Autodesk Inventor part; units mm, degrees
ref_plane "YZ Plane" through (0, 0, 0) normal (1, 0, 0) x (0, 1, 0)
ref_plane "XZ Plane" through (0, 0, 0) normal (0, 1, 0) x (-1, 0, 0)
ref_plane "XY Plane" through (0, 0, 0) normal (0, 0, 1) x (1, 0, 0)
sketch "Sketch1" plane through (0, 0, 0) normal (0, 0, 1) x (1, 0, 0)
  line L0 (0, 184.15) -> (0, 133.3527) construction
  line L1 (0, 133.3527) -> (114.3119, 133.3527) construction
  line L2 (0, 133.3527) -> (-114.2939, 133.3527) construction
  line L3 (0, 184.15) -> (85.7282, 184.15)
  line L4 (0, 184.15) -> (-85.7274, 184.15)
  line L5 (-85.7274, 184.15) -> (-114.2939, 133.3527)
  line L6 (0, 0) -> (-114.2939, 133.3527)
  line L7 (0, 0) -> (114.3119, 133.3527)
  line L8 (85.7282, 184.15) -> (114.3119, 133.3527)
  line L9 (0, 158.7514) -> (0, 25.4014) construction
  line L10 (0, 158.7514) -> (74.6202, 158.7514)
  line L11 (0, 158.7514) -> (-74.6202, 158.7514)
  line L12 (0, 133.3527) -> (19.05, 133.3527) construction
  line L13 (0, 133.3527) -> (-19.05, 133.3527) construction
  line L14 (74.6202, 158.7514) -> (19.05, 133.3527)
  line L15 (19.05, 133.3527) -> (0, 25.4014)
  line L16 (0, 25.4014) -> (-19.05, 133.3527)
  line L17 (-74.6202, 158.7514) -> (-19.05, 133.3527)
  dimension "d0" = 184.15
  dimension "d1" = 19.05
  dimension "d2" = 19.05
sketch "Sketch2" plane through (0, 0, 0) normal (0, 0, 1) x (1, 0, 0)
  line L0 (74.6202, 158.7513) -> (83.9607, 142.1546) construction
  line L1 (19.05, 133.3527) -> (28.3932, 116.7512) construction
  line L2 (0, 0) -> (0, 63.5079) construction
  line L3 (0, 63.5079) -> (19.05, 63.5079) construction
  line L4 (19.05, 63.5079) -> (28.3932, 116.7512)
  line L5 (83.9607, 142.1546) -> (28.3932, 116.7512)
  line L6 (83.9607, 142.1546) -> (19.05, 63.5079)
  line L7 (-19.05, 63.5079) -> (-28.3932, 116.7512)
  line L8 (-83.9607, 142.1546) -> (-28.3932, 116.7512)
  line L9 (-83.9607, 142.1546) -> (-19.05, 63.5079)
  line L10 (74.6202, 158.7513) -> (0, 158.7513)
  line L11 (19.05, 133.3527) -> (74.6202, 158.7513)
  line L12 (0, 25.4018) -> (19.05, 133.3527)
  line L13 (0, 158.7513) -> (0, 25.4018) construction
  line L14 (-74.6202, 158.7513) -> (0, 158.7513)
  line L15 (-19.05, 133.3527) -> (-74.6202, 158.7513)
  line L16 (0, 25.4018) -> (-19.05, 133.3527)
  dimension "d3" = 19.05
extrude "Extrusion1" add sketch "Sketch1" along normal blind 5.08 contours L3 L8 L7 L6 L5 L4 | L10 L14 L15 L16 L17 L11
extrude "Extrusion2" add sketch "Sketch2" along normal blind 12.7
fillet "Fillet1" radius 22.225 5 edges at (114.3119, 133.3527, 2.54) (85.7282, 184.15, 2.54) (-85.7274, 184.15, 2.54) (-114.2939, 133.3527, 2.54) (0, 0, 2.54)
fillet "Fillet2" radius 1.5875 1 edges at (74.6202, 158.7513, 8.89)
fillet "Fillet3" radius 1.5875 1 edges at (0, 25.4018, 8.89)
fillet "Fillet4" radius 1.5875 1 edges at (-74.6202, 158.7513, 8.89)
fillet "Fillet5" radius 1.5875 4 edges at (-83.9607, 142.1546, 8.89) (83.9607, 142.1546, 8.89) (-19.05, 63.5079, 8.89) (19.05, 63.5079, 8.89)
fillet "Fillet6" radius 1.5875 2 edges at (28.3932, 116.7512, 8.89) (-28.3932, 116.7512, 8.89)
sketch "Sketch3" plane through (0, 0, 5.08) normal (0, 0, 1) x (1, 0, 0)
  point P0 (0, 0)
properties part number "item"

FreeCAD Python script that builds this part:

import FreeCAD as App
import Part
import Sketcher
Q = App.Units.Quantity


def edges_at(feature, points):
    """Names of the edges that pass closest to the given points."""
    edges = feature.Shape.Edges
    near = lambda p: min(range(len(edges)), key=lambda i: edges[i].distToShape(Part.Vertex(*p))[0])
    return sorted({f"Edge{near(p) + 1}" for p in points})


def add_polygon(sketch, points):
    """Adds a closed chain of lines whose ends are joined by coincident constraints."""
    first, n = sketch.GeometryCount, len(points)
    for a, b in zip(points, points[1:] + points[:1]):
        sketch.addGeometry(Part.LineSegment(App.Vector(*a, 0), App.Vector(*b, 0)), False)
    for i in range(n):
        sketch.addConstraint(Sketcher.Constraint("Coincident", first + i, 2, first + (i + 1) % n, 1))

doc = App.newDocument("Part")
body = doc.addObject("PartDesign::Body", "Body")

sketch1 = body.newObject("Sketcher::SketchObject", "Sketch")
sketch1.AttachmentSupport = (doc.getObject("XY_Plane"), [""])
sketch1.MapMode = "FlatFace"
add_polygon(sketch1, [(85.7282, 184.15), (-85.7274, 184.15), (-114.2939, 133.3527), (0, 0), (114.3119, 133.3527)])
sketch1.addConstraint([
    Sketcher.Constraint("Horizontal", 0),
    Sketcher.Constraint("Coincident", 2, 2, -1, 1),
    Sketcher.Constraint("Horizontal", 1, 2, 3, 2),
    Sketcher.Constraint("DistanceY", -1, 1, 0, 2, Q("7.25 in")),
    Sketcher.Constraint("Angle", 2, Q("-49.4008 deg")),
    Sketcher.Constraint("DistanceX", 0, 2, 0, 1, Q("171.4556 mm")),
    Sketcher.Constraint("DistanceX", 0, 2, -1, 1, Q("3.3751 in")),
    Sketcher.Constraint("DistanceY", -1, 1, 1, 2, Q("5.2501 in")),
    Sketcher.Constraint("Distance", 3, Q("175.642 mm")),
])
pad1 = body.newObject("PartDesign::Pad", "Pad")
pad1.Profile = sketch1
pad1.Length = Q("0.2 in")

sketch2 = body.newObject("Sketcher::SketchObject", "Sketch001")
sketch2.AttachmentSupport = (doc.getObject("XY_Plane"), [""])
sketch2.MapMode = "FlatFace"
add_polygon(sketch2, [(28.3932, 116.7512), (19.05, 63.5079), (83.9607, 142.1546)])
add_polygon(sketch2, [(-83.9607, 142.1546), (-19.05, 63.5079), (-28.3932, 116.7512)])
add_polygon(sketch2, [(19.05, 133.3527), (74.6202, 158.7513), (-74.6202, 158.7513), (-19.05, 133.3527), (0, 25.4018)])
sketch2.addConstraint([
    Sketcher.Constraint("Horizontal", 7),
    Sketcher.Constraint("PointOnObject", 9, 2, -2),
    Sketcher.Constraint("DistanceX", -1, 1, 0, 2, Q("0.75 in")),
    Sketcher.Constraint("DistanceX", 3, 2, -1, 1, Q("0.75 in")),
    Sketcher.Constraint("DistanceX", 8, 2, -1, 1, Q("0.75 in")),
    Sketcher.Constraint("DistanceX", -1, 1, 10, 2, Q("0.75 in")),
    Sketcher.Constraint("DistanceX", 7, 2, 7, 1, Q("5.8756 in")),
    Sketcher.Constraint("Distance", 9, Q("4.3157 in")),
    Sketcher.Constraint("Distance", 10, Q("4.3157 in")),
    Sketcher.Constraint("DistanceY", -1, 1, 0, 2, Q("2.5003 in")),
    Sketcher.Constraint("DistanceY", -1, 1, 2, 2, Q("4.5965 in")),
    Sketcher.Constraint("DistanceY", -1, 1, 3, 2, Q("2.5003 in")),
    Sketcher.Constraint("DistanceY", -1, 1, 4, 2, Q("4.5965 in")),
    Sketcher.Constraint("DistanceX", -1, 1, 6, 2, Q("2.9378 in")),
    Sketcher.Constraint("DistanceY", -1, 1, 8, 2, Q("5.2501 in")),
    Sketcher.Constraint("DistanceX", 2, 2, 1, 2, Q("2.1877 in")),
    Sketcher.Constraint("DistanceX", 5, 2, 4, 2, Q("2.1877 in")),
    Sketcher.Constraint("Distance", 0, Q("54.0569 mm")),
    Sketcher.Constraint("Distance", 1, Q("101.974 mm")),
    Sketcher.Constraint("Distance", 3, Q("101.974 mm")),
    Sketcher.Constraint("Distance", 4, Q("54.0569 mm")),
    Sketcher.Constraint("Distance", 6, Q("2.4054882 in")),
])
pad2 = body.newObject("PartDesign::Pad", "Pad001")
pad2.Profile = sketch2
pad2.Length = Q("0.5 in")
doc.recompute()

fillet = body.newObject("PartDesign::Fillet", "Fillet")
fillet.Base = (pad2, edges_at(pad2, [
    (114.312, 133.353, 2.54),
    (85.728, 184.15, 2.54),
    (-85.727, 184.15, 2.54),
    (-114.294, 133.353, 2.54),
    (0, 0, 2.54),
]))
fillet.Radius = Q("0.875 in")
doc.recompute()

fillet2 = body.newObject("PartDesign::Fillet", "Fillet001")
fillet2.Base = (fillet, edges_at(fillet, [(74.62, 158.751, 8.89)]))
fillet2.Radius = Q("0.0625 in")
doc.recompute()

fillet3 = body.newObject("PartDesign::Fillet", "Fillet002")
fillet3.Base = (fillet2, edges_at(fillet2, [(0, 25.402, 8.89)]))
fillet3.Radius = Q("0.0625 in")
doc.recompute()

fillet4 = body.newObject("PartDesign::Fillet", "Fillet003")
fillet4.Base = (fillet3, edges_at(fillet3, [(-74.62, 158.751, 8.89)]))
fillet4.Radius = Q("0.0625 in")
doc.recompute()

fillet5 = body.newObject("PartDesign::Fillet", "Fillet004")
fillet5.Base = (fillet4, edges_at(fillet4, [
    (-83.961, 142.155, 8.89),
    (83.961, 142.155, 8.89),
    (-19.05, 63.508, 8.89),
    (19.05, 63.508, 8.89),
]))
fillet5.Radius = Q("0.0625 in")
doc.recompute()

fillet6 = body.newObject("PartDesign::Fillet", "Fillet005")
fillet6.Base = (fillet5, edges_at(fillet5, [(28.393, 116.751, 8.89), (-28.393, 116.751, 8.89)]))
fillet6.Radius = Q("0.0625 in")

doc.recompute()
